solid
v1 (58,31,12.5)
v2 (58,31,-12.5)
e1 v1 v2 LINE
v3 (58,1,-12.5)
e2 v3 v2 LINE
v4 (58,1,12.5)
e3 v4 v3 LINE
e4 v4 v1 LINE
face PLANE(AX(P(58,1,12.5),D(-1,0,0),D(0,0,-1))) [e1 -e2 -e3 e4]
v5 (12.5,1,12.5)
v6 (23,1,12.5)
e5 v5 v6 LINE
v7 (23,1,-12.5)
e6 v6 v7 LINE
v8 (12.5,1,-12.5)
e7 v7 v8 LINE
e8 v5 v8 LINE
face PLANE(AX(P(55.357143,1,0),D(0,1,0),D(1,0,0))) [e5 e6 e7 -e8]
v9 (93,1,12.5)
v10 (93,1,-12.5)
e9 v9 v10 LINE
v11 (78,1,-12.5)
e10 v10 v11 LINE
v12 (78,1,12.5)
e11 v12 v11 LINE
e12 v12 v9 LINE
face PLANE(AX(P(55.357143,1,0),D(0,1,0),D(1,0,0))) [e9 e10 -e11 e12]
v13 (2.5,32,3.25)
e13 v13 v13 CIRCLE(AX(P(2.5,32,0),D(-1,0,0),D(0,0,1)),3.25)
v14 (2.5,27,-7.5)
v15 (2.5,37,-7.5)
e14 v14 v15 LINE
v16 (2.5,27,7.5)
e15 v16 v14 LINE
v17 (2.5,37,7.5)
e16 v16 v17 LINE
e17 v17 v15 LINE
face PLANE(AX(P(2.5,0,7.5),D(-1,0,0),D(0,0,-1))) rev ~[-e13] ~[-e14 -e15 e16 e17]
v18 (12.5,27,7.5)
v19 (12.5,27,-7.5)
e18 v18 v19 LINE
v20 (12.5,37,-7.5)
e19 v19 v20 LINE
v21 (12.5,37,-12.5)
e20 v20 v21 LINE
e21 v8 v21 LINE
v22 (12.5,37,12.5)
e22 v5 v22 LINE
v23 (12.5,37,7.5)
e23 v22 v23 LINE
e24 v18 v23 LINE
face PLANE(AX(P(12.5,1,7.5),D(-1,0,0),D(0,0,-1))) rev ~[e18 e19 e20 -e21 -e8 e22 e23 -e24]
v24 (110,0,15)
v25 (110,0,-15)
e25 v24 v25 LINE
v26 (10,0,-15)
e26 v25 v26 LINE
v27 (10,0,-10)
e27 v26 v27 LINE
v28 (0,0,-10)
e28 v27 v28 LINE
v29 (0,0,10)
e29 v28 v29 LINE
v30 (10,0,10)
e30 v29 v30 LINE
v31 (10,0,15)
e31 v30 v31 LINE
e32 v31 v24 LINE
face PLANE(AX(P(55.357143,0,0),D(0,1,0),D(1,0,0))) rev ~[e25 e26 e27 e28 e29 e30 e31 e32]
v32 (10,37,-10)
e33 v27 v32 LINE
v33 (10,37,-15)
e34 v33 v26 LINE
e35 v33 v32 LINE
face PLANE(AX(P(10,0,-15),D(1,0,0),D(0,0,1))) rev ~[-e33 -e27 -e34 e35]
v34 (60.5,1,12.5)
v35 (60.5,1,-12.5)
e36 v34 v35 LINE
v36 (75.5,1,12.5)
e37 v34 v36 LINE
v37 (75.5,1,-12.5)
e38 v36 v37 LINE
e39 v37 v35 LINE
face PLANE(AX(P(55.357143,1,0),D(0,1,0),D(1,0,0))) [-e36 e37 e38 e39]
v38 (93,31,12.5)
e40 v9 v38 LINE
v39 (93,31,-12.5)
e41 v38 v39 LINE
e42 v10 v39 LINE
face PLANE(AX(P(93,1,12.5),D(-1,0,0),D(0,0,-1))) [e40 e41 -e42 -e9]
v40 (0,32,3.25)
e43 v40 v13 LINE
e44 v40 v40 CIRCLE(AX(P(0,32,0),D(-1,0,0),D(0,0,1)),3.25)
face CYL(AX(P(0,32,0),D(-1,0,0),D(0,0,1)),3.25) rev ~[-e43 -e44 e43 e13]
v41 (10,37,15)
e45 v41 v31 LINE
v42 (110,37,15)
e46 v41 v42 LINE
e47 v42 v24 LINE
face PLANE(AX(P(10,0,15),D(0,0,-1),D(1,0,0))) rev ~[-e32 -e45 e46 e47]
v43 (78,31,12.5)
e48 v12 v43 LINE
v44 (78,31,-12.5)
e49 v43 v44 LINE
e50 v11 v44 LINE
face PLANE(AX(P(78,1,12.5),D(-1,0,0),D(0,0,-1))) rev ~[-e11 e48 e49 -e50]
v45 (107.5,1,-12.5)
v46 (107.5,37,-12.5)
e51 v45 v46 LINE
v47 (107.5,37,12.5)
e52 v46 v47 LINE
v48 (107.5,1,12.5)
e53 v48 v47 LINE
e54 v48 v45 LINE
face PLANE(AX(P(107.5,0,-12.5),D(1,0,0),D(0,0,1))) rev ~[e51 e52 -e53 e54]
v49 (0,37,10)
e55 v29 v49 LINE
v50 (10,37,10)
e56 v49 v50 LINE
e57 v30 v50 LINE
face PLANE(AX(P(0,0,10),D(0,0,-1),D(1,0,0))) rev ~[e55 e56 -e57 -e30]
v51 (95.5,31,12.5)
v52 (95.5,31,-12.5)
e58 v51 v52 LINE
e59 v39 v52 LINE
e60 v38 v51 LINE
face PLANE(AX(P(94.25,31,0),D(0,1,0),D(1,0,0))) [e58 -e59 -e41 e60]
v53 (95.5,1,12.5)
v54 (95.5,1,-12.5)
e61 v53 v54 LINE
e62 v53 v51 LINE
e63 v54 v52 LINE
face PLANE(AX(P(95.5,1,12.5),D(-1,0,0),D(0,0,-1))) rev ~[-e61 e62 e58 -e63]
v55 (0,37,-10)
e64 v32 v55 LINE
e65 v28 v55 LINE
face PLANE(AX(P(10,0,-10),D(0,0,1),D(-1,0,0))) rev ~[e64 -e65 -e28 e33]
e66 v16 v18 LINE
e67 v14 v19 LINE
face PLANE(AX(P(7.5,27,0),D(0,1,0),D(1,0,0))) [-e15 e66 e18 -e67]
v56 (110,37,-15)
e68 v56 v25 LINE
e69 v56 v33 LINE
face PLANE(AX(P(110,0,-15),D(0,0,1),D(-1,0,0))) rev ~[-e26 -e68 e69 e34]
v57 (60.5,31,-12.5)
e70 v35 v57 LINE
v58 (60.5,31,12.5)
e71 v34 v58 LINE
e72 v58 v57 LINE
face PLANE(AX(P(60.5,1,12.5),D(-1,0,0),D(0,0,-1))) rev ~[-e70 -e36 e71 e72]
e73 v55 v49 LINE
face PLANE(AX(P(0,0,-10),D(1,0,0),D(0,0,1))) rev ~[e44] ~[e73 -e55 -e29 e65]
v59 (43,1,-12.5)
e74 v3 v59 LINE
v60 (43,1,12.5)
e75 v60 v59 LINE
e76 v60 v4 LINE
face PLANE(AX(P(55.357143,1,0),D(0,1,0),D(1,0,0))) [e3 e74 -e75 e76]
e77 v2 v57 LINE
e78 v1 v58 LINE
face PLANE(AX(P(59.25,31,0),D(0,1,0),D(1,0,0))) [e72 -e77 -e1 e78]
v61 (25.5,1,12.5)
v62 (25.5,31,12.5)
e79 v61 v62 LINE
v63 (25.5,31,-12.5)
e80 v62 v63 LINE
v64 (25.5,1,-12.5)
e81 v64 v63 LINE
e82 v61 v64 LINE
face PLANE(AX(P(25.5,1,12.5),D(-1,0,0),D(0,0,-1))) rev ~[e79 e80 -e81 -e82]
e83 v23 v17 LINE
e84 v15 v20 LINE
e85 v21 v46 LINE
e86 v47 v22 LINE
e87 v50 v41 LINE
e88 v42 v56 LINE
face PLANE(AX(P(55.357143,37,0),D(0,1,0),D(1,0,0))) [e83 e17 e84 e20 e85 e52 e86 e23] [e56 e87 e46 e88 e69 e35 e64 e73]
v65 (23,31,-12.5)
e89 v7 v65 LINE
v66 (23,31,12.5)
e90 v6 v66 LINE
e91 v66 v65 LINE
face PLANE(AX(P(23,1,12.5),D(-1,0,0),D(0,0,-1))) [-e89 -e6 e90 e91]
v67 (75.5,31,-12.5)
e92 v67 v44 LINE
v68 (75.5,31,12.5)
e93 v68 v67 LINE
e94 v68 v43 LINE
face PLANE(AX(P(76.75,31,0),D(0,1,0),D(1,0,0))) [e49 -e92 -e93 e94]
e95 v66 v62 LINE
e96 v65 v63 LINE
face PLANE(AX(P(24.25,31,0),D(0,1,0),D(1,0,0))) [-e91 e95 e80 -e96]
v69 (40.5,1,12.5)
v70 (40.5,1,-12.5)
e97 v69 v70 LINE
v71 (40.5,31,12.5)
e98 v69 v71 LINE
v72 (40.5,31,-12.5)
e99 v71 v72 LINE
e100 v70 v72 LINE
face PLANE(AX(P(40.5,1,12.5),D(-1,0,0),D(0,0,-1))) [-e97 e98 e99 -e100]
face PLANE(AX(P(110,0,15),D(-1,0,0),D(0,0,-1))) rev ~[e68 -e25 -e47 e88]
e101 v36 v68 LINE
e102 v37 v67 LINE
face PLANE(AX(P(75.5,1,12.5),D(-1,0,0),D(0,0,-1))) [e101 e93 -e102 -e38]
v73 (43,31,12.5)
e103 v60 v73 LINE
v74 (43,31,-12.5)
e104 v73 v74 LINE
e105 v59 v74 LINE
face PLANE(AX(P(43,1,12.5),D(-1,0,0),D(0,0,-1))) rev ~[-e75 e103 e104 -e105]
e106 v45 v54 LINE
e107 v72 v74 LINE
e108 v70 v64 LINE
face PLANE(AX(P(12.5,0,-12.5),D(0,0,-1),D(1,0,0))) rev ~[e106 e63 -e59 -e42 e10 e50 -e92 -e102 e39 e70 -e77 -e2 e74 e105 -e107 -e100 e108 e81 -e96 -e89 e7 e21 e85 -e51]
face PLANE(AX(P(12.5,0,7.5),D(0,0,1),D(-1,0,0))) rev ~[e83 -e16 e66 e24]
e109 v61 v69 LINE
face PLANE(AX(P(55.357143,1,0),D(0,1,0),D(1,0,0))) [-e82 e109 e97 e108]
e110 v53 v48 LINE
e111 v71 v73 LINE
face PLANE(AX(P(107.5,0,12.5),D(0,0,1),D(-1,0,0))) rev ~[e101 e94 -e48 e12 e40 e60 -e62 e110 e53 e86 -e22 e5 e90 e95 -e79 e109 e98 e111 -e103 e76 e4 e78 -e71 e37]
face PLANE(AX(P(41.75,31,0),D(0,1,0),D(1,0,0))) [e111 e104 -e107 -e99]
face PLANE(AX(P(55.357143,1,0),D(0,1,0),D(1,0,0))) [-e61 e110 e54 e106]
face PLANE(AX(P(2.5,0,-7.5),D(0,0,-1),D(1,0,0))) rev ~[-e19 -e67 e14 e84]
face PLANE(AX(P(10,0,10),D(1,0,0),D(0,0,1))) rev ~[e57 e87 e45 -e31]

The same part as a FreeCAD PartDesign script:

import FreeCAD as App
import Part
import Sketcher
from FreeCAD import Vector
Q = App.Units.Quantity


def add_polygon(sketch, points):
    """Adds a closed chain of lines whose ends are joined by coincident constraints."""
    first, n = sketch.GeometryCount, len(points)
    for a, b in zip(points, points[1:] + points[:1]):
        sketch.addGeometry(Part.LineSegment(App.Vector(*a, 0), App.Vector(*b, 0)), False)
    for i in range(n):
        sketch.addConstraint(Sketcher.Constraint("Coincident", first + i, 2, first + (i + 1) % n, 1))

doc = App.newDocument("Part")
body = doc.addObject("PartDesign::Body", "Body")

sketch1 = body.newObject("Sketcher::SketchObject", "Sketch")
sketch1.AttachmentSupport = (doc.getObject("XZ_Plane"), [""])
sketch1.MapMode = "FlatFace"
add_polygon(sketch1, [(10, -15), (10, -10), (0, -10), (0, 10), (10, 10), (10, 15), (110, 15), (110, -15)])
sketch1.addConstraint([
    Sketcher.Constraint("Vertical", 0),
    Sketcher.Constraint("Horizontal", 1),
    Sketcher.Constraint("Vertical", 2),
    Sketcher.Constraint("Horizontal", 3),
    Sketcher.Constraint("Vertical", 4),
    Sketcher.Constraint("Horizontal", 5),
    Sketcher.Constraint("Vertical", 6),
    Sketcher.Constraint("Horizontal", 7),
    Sketcher.Constraint("Symmetric", 1, 2, 2, 2, -1, 1),
    Sketcher.Constraint("Symmetric", 4, 2, 7, 2, -1),
    Sketcher.Constraint("DistanceX", 1, 2, 1, 1, Q("10 mm")),
    Sketcher.Constraint("DistanceX", 5, 1, 5, 2, Q("100 mm")),
    Sketcher.Constraint("DistanceY", 0, 1, 0, 2, Q("5 mm")),
    Sketcher.Constraint("DistanceY", 2, 1, 2, 2, Q("20 mm")),
])
pad1 = body.newObject("PartDesign::Pad", "Pad")
pad1.Profile = sketch1
pad1.Length = 1
pad1.Reversed = True

sketch2 = body.newObject("Sketcher::SketchObject", "Sketch001")
sketch2.AttachmentSupport = (doc.getObject("XZ_Plane"), [""])
sketch2.MapMode = "FlatFace"
add_polygon(sketch2, [(10, -15), (10, -10), (0, -10), (0, 10), (10, 10), (10, 15), (110, 15), (110, -15)])
add_polygon(sketch2, [(12, -8), (12, -12), (108, -12), (108, 12), (12, 12), (12, 8), (2, 8), (2, -8)])
sketch2.addConstraint([
    Sketcher.Constraint("Vertical", 0),
    Sketcher.Constraint("Horizontal", 1),
    Sketcher.Constraint("Vertical", 2),
    Sketcher.Constraint("Horizontal", 3),
    Sketcher.Constraint("Vertical", 4),
    Sketcher.Constraint("Horizontal", 5),
    Sketcher.Constraint("Vertical", 6),
    Sketcher.Constraint("Horizontal", 7),
    Sketcher.Constraint("Vertical", 8),
    Sketcher.Constraint("Horizontal", 9),
    Sketcher.Constraint("Vertical", 10),
    Sketcher.Constraint("Horizontal", 11),
    Sketcher.Constraint("Vertical", 12),
    Sketcher.Constraint("Horizontal", 13),
    Sketcher.Constraint("Vertical", 14),
    Sketcher.Constraint("Horizontal", 15),
    Sketcher.Constraint("Symmetric", 1, 2, 2, 2, -1, 1),
    Sketcher.Constraint("Symmetric", 4, 2, 7, 2, -1),
    Sketcher.Constraint("Symmetric", 8, 2, 11, 2, -1),
    Sketcher.Constraint("Equal", 3, 13),
    Sketcher.Constraint("Equal", 4, 8),
    Sketcher.Constraint("Equal", 8, 12),
    Sketcher.Constraint("DistanceX", 1, 2, 1, 1, Q("10 mm")),
    Sketcher.Constraint("DistanceX", 5, 1, 5, 2, Q("100 mm")),
    Sketcher.Constraint("DistanceX", 9, 1, 9, 2, Q("95 mm")),
    Sketcher.Constraint("DistanceY", 0, 1, 0, 2, Q("5 mm")),
    Sketcher.Constraint("DistanceY", 2, 1, 2, 2, Q("20 mm")),
    Sketcher.Constraint("DistanceY", 10, 1, 10, 2, Q("25 mm")),
    Sketcher.Constraint("DistanceX", -1, 1, 8, 2, Q("12.5 mm")),
])
pad2 = body.newObject("PartDesign::Pad", "Pad001")
pad2.Profile = sketch2
pad2.Length = 37
pad2.Reversed = True

sketch3 = body.newObject("Sketcher::SketchObject", "Sketch002")
sketch3.AttachmentSupport = (doc.getObject("XZ_Plane"), [""])
sketch3.MapMode = "FlatFace"
sketch3.AttachmentOffset = App.Placement(Vector(0, 0, -1), App.Rotation())
add_polygon(sketch3, [(23, -12.5), (23, 12.5), (25.5, 12.5), (25.5, -12.5)])
add_polygon(sketch3, [(40.5, -12.5), (40.5, 12.5), (43, 12.5), (43, -12.5)])
add_polygon(sketch3, [(58, -12.5), (58, 12.5), (60.5, 12.5), (60.5, -12.5)])
add_polygon(sketch3, [(75.5, -12.5), (75.5, 12.5), (78, 12.5), (78, -12.5)])
add_polygon(sketch3, [(93, -12.5), (93, 12.5), (95.5, 12.5), (95.5, -12.5)])
sketch3.addConstraint([
    Sketcher.Constraint("Vertical", 0),
    Sketcher.Constraint("Horizontal", 1),
    Sketcher.Constraint("Vertical", 2),
    Sketcher.Constraint("Horizontal", 3),
    Sketcher.Constraint("Vertical", 4),
    Sketcher.Constraint("Horizontal", 5),
    Sketcher.Constraint("Vertical", 6),
    Sketcher.Constraint("Horizontal", 7),
    Sketcher.Constraint("Vertical", 8),
    Sketcher.Constraint("Horizontal", 9),
    Sketcher.Constraint("Vertical", 10),
    Sketcher.Constraint("Horizontal", 11),
    Sketcher.Constraint("Vertical", 12),
    Sketcher.Constraint("Horizontal", 13),
    Sketcher.Constraint("Vertical", 14),
    Sketcher.Constraint("Horizontal", 15),
    Sketcher.Constraint("Vertical", 16),
    Sketcher.Constraint("Horizontal", 17),
    Sketcher.Constraint("Vertical", 18),
    Sketcher.Constraint("Horizontal", 19),
    Sketcher.Constraint("Horizontal", 1, 2, 4, 2),
    Sketcher.Constraint("Horizontal", 3, 2, 6, 2),
    Sketcher.Constraint("Horizontal", 5, 2, 8, 2),
    Sketcher.Constraint("Horizontal", 7, 2, 10, 2),
    Sketcher.Constraint("Horizontal", 9, 2, 12, 2),
    Sketcher.Constraint("Horizontal", 11, 2, 14, 2),
    Sketcher.Constraint("Horizontal", 13, 2, 16, 2),
    Sketcher.Constraint("Horizontal", 15, 2, 18, 2),
    Sketcher.Constraint("Equal", 3, 5),
    Sketcher.Constraint("Equal", 7, 9),
    Sketcher.Constraint("Equal", 11, 13),
    Sketcher.Constraint("Equal", 15, 17),
    Sketcher.Constraint("DistanceY", 0, 1, 0, 2, Q("25 mm")),
    Sketcher.Constraint("DistanceX", 1, 1, 1, 2, Q("2.5 mm")),
    Sketcher.Constraint("DistanceX", -1, 1, 0, 2, Q("23 mm")),
    Sketcher.Constraint("DistanceX", -1, 1, 5, 2, Q("43 mm")),
    Sketcher.Constraint("DistanceX", -1, 1, 8, 2, Q("58 mm")),
    Sketcher.Constraint("DistanceX", -1, 1, 13, 2, Q("78 mm")),
    Sketcher.Constraint("DistanceX", -1, 1, 16, 2, Q("93 mm")),
    Sketcher.Constraint("DistanceY", -1, 1, 0, 2, Q("12.5 mm")),
])
pad3 = body.newObject("PartDesign::Pad", "Pad002")
pad3.Profile = sketch3
pad3.Length = 30
pad3.Reversed = True

sketch4 = body.newObject("Sketcher::SketchObject", "Sketch003")
sketch4.AttachmentSupport = (doc.getObject("XZ_Plane"), [""])
sketch4.MapMode = "FlatFace"
sketch4.AttachmentOffset = App.Placement(Vector(0, 0, -1), App.Rotation())
add_polygon(sketch4, [(2, -8), (2, 8), (12, 8), (12, -8)])
sketch4.addConstraint([
    Sketcher.Constraint("Vertical", 0),
    Sketcher.Constraint("Horizontal", 1),
    Sketcher.Constraint("Vertical", 2),
    Sketcher.Constraint("Horizontal", 3),
    Sketcher.Constraint("DistanceX", 1, 1, 1, 2, Q("10 mm")),
    Sketcher.Constraint("DistanceY", 0, 1, 0, 2, Q("15 mm")),
    Sketcher.Constraint("DistanceX", -1, 1, 0, 2, Q("2.5 mm")),
    Sketcher.Constraint("DistanceY", -1, 1, 0, 2, Q("7.5 mm")),
])
pad4 = body.newObject("PartDesign::Pad", "Pad003")
pad4.Profile = sketch4
pad4.Length = 26
pad4.Reversed = True

sketch5 = body.newObject("Sketcher::SketchObject", "Sketch004")
sketch5.AttachmentSupport = (doc.getObject("YZ_Plane"), [""])
sketch5.MapMode = "FlatFace"
sketch5.addGeometry(Part.Circle(Vector(32, 0, 0), Vector(0, 0, 1), 3.2), False)
sketch5.addConstraint([
    Sketcher.Constraint("PointOnObject", 0, 3, -1),
    Sketcher.Constraint("Diameter", 0, Q("6.5 mm")),
    Sketcher.Constraint("DistanceX", -1, 1, 0, 3, Q("32 mm")),
])
pocket1 = body.newObject("PartDesign::Pocket", "Pocket")
pocket1.Profile = sketch5
pocket1.Type = "UpToFirst"
pocket1.Reversed = True

doc.recompute()
